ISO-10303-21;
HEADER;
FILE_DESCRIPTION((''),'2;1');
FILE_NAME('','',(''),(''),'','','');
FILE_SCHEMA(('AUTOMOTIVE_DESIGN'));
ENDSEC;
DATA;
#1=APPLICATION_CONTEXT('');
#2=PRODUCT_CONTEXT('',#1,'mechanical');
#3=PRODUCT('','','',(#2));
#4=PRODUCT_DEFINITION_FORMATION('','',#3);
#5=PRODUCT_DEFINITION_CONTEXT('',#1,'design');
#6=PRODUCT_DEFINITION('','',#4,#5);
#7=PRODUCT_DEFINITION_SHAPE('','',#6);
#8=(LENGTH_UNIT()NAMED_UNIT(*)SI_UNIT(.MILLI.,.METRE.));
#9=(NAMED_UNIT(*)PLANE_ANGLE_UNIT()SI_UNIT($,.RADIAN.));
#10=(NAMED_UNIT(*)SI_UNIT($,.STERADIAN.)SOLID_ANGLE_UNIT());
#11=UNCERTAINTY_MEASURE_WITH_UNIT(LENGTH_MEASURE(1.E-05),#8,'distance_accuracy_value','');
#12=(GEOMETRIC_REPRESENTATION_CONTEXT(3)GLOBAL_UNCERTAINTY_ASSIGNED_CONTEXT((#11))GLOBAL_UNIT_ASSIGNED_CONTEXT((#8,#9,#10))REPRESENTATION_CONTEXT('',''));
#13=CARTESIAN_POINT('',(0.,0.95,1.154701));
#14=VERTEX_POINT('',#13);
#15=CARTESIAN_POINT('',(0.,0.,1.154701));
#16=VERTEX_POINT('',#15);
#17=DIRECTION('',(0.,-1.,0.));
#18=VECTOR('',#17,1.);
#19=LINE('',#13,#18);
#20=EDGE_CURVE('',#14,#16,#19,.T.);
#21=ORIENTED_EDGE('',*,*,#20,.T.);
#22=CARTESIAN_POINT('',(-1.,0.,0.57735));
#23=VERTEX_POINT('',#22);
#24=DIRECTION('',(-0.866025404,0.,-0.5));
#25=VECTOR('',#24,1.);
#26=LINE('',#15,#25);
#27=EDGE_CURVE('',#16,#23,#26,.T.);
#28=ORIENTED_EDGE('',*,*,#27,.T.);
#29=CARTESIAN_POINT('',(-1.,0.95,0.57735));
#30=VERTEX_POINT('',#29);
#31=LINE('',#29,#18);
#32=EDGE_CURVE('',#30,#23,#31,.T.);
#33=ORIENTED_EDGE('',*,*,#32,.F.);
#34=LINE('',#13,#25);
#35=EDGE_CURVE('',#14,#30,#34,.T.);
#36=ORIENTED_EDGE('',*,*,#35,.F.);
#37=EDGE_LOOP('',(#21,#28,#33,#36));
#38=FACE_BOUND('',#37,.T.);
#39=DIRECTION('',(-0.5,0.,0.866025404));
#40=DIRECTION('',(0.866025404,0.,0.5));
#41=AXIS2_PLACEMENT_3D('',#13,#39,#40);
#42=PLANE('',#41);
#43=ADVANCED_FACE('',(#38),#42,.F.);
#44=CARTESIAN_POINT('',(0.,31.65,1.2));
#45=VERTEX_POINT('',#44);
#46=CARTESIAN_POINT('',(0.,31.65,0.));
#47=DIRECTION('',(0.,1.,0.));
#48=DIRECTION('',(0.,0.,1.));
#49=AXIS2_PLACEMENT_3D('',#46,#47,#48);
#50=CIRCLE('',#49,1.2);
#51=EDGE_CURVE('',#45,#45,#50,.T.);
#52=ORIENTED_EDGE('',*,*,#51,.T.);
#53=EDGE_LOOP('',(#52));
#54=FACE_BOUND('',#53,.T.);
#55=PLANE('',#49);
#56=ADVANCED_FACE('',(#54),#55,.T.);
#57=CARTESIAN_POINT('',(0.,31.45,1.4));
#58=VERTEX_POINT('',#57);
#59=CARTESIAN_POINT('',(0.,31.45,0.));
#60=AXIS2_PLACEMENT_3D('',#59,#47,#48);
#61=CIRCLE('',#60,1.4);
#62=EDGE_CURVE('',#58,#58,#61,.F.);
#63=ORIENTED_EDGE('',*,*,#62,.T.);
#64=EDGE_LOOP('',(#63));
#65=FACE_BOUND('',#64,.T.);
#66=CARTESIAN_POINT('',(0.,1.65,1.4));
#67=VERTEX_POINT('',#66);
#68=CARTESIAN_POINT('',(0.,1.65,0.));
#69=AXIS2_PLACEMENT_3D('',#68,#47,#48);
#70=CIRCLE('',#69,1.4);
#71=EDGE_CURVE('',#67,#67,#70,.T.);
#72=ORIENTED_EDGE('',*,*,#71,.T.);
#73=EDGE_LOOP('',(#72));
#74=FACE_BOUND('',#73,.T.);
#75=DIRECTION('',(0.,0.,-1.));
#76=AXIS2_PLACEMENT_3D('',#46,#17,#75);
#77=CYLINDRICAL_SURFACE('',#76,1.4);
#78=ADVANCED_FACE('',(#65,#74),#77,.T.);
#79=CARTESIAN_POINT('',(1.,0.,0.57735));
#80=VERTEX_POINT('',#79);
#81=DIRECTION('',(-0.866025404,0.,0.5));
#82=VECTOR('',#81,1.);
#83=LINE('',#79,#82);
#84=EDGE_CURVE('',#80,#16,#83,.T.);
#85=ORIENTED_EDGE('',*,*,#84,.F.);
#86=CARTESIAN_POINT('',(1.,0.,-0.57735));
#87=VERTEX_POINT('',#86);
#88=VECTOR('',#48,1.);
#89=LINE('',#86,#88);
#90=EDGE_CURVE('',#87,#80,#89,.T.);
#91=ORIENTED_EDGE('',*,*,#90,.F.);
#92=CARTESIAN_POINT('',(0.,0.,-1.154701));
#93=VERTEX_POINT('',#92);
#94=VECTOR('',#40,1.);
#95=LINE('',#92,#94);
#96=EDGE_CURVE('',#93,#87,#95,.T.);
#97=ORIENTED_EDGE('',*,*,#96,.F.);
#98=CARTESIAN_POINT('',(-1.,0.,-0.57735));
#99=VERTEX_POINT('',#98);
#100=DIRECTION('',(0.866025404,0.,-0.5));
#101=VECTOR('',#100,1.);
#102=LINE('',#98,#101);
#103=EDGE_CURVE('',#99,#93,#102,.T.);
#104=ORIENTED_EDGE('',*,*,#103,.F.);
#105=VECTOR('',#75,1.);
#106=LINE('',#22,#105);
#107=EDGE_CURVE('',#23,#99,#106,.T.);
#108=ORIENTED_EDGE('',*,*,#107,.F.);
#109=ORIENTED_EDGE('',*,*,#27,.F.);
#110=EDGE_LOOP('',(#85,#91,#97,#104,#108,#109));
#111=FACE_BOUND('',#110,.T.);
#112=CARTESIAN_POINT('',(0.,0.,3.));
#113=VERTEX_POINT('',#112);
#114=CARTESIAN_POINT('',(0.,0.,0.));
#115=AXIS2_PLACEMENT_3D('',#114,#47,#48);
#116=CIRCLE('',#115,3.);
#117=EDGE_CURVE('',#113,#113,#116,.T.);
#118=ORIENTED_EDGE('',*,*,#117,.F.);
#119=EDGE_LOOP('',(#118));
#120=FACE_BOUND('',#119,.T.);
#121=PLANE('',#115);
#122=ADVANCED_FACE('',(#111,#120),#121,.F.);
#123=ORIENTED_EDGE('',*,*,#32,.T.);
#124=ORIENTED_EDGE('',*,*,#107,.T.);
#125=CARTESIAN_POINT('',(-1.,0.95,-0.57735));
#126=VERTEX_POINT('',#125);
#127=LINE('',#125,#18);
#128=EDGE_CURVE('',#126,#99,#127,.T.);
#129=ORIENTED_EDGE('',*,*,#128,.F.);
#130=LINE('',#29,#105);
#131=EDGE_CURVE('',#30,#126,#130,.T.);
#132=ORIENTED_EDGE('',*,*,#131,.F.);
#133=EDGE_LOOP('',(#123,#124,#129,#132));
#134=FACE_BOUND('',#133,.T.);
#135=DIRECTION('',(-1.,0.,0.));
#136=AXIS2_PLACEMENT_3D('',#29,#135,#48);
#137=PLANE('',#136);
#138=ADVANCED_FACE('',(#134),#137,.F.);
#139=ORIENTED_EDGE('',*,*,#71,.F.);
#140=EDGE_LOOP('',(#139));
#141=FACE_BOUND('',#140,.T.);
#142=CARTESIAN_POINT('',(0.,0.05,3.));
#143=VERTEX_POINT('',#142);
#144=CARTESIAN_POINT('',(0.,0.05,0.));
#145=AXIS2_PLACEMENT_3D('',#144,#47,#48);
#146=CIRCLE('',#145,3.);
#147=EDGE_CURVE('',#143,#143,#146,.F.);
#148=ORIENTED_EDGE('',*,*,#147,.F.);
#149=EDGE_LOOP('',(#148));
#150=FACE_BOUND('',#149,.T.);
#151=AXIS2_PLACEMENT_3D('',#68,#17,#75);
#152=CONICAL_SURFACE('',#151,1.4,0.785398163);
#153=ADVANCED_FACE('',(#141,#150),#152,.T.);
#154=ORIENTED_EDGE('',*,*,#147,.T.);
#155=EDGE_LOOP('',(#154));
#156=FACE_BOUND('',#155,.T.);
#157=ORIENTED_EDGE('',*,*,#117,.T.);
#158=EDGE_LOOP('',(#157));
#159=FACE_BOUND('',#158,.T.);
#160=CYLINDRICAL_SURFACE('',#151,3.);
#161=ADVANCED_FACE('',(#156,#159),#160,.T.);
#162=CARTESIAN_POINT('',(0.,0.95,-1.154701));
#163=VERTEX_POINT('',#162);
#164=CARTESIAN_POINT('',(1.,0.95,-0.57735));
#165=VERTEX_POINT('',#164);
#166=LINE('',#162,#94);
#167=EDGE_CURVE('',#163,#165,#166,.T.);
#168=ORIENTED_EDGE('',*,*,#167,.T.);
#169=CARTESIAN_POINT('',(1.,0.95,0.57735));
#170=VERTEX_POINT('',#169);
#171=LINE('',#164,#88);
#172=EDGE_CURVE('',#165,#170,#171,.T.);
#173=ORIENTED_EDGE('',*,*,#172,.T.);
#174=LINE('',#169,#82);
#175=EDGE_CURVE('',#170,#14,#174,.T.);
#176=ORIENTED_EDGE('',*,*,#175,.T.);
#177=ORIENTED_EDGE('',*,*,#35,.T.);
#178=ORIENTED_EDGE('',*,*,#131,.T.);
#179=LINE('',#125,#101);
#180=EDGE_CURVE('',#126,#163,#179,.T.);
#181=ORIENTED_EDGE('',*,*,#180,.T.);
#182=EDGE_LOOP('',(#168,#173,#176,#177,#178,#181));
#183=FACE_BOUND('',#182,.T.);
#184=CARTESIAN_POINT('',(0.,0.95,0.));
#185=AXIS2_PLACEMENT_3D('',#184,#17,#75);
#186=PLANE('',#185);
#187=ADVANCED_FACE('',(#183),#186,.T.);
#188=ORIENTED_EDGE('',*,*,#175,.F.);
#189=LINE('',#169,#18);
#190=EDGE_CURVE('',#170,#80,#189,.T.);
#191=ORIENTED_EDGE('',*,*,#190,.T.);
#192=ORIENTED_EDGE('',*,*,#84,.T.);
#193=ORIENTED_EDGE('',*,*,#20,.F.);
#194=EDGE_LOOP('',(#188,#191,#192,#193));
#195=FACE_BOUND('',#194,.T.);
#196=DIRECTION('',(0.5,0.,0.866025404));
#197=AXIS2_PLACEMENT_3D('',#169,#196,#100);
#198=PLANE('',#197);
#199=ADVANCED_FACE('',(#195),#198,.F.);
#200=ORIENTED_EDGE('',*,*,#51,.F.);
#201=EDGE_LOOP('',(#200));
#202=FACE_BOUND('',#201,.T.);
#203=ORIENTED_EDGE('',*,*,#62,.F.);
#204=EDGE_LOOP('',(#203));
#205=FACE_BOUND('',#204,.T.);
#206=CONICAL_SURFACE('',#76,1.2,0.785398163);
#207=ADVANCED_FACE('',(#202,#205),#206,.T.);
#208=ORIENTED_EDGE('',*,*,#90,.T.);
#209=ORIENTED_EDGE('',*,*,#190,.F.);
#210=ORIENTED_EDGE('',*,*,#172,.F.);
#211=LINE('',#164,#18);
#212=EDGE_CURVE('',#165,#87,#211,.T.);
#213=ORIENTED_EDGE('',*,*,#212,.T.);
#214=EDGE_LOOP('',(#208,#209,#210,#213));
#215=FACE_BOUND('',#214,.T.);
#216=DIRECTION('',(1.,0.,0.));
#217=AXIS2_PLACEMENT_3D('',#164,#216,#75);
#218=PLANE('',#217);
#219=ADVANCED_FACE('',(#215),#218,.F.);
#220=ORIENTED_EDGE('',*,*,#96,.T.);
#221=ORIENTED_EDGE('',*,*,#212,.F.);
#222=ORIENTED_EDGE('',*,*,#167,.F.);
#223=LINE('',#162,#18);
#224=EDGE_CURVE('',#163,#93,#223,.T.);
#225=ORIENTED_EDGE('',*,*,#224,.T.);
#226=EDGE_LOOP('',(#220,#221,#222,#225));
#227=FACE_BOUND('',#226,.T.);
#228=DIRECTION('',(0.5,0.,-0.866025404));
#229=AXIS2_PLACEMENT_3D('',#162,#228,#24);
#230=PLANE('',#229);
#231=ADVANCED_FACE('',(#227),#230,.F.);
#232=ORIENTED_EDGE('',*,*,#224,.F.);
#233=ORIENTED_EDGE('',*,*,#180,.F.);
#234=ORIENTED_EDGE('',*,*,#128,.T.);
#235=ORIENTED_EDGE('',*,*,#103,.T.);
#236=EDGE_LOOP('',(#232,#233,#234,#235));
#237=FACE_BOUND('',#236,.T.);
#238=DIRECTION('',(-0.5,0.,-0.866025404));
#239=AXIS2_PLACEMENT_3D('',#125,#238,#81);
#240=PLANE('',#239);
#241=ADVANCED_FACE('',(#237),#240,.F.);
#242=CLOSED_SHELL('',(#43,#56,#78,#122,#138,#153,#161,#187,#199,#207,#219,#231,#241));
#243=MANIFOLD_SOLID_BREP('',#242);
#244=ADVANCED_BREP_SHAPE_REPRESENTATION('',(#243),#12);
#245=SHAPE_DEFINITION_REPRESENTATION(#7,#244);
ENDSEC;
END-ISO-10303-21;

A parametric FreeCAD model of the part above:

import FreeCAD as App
import Part
import Sketcher

V = App.Vector
Q = App.Units.Quantity


def edges_at(feature, points):
    """Names of the edges that pass closest to the given points."""
    edges = feature.Shape.Edges
    near = lambda p: min(range(len(edges)), key=lambda i: edges[i].distToShape(Part.Vertex(*p))[0])
    return sorted({f"Edge{near(p) + 1}" for p in points})

doc = App.newDocument("Part")
params = doc.addObject("Spreadsheet::Sheet", "Params")
for row, (alias, value) in enumerate([
    ("sketch1_diameter", "6 mm"),
    ("pad1_length", "1.65 mm"),
    ("chamfer_size", "1.6 mm"),
    ("pocket1_length", "0.95 mm"),
    ("sketch3_diameter", "2.8 mm"),
    ("pad2_length", "30 mm"),
    ("chamfer2_size", "0.2 mm"),
], start=1):
    params.set(f"A{row}", alias)
    params.set(f"B{row}", "=" + value)
    params.setAlias(f"B{row}", alias)

body = doc.addObject("PartDesign::Body", "Body")

# Sketch on XZ plane
sketch1 = body.newObject("Sketcher::SketchObject", "Sketch")
sketch1.AttachmentSupport = (doc.getObject("XZ_Plane"), [""])
sketch1.MapMode = "FlatFace"
sketch1.addGeometry(Part.Circle(V(0, 0, 0), V(0, 0, 1), 3), False)
sketch1.addConstraint([
    Sketcher.Constraint("Coincident", 0, 3, -1, 1),
    Sketcher.Constraint("Diameter", 0, Q("6 mm")),
])
sketch1.setExpression("Constraints[1]", "Params.sketch1_diameter")
pad1 = body.newObject("PartDesign::Pad", "Pad")
pad1.Profile = sketch1
pad1.setExpression("Length", "Params.pad1_length")
pad1.Reversed = True
doc.recompute()

chamfer = body.newObject("PartDesign::Chamfer", "Chamfer")
chamfer.Base = (pad1, edges_at(pad1, [(0, 1.65, -3)]))
chamfer.setExpression("Size", "Params.chamfer_size")

# Sketch on XZ plane
sketch2 = body.newObject("Sketcher::SketchObject", "Sketch001")
sketch2.AttachmentSupport = (doc.getObject("XZ_Plane"), [""])
sketch2.MapMode = "FlatFace"
sketch2.addGeometry([
    Part.LineSegment(V(1, -0.6, 0), V(1, 0.6, 0)),  # 0
    Part.LineSegment(V(1, 0.6, 0), V(0, 1.2, 0)),  # 1
    Part.LineSegment(V(0, 1.2, 0), V(-1, 0.6, 0)),  # 2
    Part.LineSegment(V(-1, 0.6, 0), V(-1, -0.6, 0)),  # 3
    Part.LineSegment(V(-1, -0.6, 0), V(0, -1.2, 0)),  # 4
    Part.LineSegment(V(0, -1.2, 0), V(1, -0.6, 0)),  # 5
], False)
sketch2.addConstraint([
    Sketcher.Constraint("Coincident", 0, 2, 1, 1),
    Sketcher.Constraint("Coincident", 1, 2, 2, 1),
    Sketcher.Constraint("Coincident", 2, 2, 3, 1),
    Sketcher.Constraint("Coincident", 3, 2, 4, 1),
    Sketcher.Constraint("Coincident", 4, 2, 5, 1),
    Sketcher.Constraint("Coincident", 5, 2, 0, 1),
    Sketcher.Constraint("Vertical", 0),
    Sketcher.Constraint("Vertical", 3),
    Sketcher.Constraint("Symmetric", 0, 2, 3, 2, -1, 1),
    Sketcher.Constraint("Symmetric", 1, 2, 4, 2, -1, 1),
    Sketcher.Constraint("PointOnObject", 1, 2, -2),
    Sketcher.Constraint("Parallel", 2, 5),
    Sketcher.Constraint("Horizontal", 0, 2, 2, 2),
    Sketcher.Constraint("Angle", 1, Q("150 deg")),
    Sketcher.Constraint("DistanceX", -1, 1, 0, 2, Q("1 mm")),
    Sketcher.Constraint("DistanceY", 0, 1, 0, 2, Q("1.154701 mm")),
])
pocket1 = body.newObject("PartDesign::Pocket", "Pocket")
pocket1.Profile = sketch2
pocket1.setExpression("Length", "Params.pocket1_length")

# Sketch on XZ plane
sketch3 = body.newObject("Sketcher::SketchObject", "Sketch002")
sketch3.AttachmentSupport = (doc.getObject("XZ_Plane"), [""])
sketch3.MapMode = "FlatFace"
sketch3.AttachmentOffset = App.Placement(V(0, 0, -1.65), App.Rotation())
sketch3.addGeometry(Part.Circle(V(0, 0, 0), V(0, 0, 1), 1.4), False)
sketch3.addConstraint([
    Sketcher.Constraint("Coincident", 0, 3, -1, 1),
    Sketcher.Constraint("Diameter", 0, Q("2.8 mm")),
])
sketch3.setExpression("Constraints[1]", "Params.sketch3_diameter")
pad2 = body.newObject("PartDesign::Pad", "Pad001")
pad2.Profile = sketch3
pad2.setExpression("Length", "Params.pad2_length")
pad2.Reversed = True
doc.recompute()

chamfer2 = body.newObject("PartDesign::Chamfer", "Chamfer001")
chamfer2.Base = (pad2, edges_at(pad2, [(0, 31.65, -1.4)]))
chamfer2.setExpression("Size", "Params.chamfer2_size")

doc.recompute()
